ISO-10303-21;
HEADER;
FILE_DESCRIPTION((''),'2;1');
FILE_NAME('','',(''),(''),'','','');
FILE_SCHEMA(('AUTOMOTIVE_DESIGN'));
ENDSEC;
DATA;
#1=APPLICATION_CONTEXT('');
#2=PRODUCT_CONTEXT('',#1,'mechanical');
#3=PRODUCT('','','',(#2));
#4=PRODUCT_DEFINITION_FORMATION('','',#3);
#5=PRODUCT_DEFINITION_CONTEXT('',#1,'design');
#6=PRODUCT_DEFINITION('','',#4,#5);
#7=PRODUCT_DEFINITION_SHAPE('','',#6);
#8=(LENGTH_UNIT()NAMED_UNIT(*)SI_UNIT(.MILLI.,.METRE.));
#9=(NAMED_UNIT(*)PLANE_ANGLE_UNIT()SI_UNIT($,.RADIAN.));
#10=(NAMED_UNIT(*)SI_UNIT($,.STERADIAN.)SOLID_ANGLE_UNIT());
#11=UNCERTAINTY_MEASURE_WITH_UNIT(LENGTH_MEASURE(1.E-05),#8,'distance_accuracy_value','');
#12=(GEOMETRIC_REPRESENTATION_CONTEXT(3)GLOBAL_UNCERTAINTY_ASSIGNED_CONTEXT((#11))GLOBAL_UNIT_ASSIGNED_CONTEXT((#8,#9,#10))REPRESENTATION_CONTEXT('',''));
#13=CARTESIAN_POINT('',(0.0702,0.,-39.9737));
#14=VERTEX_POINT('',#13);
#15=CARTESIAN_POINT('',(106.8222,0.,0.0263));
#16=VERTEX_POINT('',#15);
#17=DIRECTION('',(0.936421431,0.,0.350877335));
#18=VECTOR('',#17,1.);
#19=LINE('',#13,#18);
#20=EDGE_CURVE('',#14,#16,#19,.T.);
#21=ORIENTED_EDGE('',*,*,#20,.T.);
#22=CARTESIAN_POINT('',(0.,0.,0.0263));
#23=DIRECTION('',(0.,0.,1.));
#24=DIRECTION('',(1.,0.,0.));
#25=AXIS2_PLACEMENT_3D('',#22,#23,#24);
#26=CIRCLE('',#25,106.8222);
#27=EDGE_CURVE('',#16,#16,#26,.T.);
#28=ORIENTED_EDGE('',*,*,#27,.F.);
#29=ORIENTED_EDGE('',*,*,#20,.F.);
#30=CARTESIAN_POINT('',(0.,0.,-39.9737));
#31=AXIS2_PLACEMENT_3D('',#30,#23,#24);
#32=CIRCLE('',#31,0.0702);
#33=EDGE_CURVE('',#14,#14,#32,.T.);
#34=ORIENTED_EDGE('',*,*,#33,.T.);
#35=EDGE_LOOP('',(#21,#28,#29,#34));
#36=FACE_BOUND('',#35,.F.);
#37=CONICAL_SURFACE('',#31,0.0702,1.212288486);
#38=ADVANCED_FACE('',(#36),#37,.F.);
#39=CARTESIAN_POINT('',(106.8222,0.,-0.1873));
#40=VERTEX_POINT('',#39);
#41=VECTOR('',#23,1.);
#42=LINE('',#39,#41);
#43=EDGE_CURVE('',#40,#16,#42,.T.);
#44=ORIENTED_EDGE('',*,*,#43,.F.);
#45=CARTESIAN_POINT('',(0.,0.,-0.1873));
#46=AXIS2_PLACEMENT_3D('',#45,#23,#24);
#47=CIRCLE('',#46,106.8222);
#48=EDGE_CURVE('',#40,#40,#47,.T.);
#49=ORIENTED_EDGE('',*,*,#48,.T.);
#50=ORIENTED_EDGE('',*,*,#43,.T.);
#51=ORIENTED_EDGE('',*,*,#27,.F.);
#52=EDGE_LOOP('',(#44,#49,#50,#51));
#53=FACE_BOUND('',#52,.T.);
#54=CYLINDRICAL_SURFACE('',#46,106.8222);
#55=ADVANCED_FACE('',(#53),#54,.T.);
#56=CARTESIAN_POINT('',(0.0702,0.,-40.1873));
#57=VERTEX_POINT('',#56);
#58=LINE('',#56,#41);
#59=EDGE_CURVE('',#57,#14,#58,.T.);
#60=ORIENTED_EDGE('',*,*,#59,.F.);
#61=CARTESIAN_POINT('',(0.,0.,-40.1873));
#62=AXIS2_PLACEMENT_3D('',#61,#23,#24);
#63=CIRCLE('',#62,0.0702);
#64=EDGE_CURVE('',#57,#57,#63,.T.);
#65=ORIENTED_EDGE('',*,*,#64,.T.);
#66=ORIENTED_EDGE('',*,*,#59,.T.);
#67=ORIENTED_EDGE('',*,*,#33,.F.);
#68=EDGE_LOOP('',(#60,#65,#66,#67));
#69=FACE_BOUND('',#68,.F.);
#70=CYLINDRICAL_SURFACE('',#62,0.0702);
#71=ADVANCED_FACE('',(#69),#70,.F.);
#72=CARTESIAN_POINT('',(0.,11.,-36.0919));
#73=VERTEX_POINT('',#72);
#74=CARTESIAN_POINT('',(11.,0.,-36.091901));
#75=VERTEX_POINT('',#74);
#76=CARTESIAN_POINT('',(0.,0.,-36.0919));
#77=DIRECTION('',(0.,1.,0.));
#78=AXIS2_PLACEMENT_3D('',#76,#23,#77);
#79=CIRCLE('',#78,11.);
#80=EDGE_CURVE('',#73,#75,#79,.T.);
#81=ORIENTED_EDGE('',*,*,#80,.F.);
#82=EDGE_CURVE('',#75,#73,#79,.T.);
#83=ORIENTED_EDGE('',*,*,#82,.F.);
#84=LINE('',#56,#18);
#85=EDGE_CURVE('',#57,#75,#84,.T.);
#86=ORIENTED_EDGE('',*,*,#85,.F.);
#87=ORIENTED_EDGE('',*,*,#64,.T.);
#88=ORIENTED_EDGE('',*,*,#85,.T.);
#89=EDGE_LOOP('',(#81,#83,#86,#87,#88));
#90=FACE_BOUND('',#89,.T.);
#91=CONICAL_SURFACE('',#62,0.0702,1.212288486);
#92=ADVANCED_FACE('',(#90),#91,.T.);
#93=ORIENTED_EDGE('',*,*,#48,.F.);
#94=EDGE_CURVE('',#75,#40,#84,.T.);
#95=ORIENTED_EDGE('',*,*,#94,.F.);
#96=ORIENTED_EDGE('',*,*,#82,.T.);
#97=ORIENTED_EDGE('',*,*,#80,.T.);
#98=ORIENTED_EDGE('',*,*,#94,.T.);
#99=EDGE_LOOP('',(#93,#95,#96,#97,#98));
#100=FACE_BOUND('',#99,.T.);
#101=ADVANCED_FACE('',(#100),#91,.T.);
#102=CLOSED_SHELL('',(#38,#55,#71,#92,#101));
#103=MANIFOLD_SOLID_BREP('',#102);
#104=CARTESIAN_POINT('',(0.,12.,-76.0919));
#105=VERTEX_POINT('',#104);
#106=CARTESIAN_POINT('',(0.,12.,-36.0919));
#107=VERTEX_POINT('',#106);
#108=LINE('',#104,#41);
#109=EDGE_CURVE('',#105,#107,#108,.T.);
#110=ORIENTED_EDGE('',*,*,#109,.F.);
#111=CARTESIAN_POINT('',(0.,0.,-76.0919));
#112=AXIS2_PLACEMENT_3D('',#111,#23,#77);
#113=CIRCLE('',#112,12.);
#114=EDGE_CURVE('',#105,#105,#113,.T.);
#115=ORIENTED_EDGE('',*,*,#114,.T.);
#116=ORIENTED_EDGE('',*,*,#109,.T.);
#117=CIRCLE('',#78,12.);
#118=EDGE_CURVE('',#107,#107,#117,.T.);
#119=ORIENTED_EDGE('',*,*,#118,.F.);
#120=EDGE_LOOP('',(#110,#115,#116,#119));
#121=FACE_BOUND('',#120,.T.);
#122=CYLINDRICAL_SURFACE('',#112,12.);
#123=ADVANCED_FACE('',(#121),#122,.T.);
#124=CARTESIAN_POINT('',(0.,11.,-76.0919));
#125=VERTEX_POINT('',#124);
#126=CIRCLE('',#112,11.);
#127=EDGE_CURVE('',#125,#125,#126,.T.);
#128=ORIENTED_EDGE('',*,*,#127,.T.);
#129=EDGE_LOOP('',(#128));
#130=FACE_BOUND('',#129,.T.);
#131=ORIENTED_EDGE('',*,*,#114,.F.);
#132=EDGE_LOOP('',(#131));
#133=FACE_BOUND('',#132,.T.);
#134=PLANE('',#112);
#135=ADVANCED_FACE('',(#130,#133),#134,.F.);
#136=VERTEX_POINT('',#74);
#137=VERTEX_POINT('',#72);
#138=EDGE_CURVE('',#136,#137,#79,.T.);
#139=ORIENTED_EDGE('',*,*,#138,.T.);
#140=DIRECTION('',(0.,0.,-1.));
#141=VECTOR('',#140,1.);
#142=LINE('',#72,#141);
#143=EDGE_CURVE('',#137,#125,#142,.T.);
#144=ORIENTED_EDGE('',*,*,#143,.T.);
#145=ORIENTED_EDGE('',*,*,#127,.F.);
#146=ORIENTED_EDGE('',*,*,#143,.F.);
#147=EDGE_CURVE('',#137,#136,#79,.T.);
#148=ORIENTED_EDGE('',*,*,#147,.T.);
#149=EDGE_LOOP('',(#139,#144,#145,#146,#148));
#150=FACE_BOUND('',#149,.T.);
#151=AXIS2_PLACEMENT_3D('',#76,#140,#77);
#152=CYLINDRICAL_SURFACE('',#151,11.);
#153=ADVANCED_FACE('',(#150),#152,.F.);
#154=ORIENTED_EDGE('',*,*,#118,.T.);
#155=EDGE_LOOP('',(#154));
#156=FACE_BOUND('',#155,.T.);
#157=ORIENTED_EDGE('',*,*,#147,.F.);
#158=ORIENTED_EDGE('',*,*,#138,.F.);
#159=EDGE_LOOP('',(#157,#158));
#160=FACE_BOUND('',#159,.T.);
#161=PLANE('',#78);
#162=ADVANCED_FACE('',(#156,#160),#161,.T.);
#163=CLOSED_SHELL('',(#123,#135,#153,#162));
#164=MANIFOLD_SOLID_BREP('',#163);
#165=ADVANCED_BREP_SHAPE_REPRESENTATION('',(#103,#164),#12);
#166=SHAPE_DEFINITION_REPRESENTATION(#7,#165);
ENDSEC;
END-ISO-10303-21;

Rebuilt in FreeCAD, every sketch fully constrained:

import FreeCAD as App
import Part
import Sketcher

V = App.Vector


def add_polygon(sketch, points):
    """Adds a closed chain of lines whose ends are joined by coincident constraints."""
    first, n = sketch.GeometryCount, len(points)
    for a, b in zip(points, points[1:] + points[:1]):
        sketch.addGeometry(Part.LineSegment(App.Vector(*a, 0), App.Vector(*b, 0)), False)
    for i in range(n):
        sketch.addConstraint(Sketcher.Constraint("Coincident", first + i, 2, first + (i + 1) % n, 1))

doc = App.newDocument("Part")
params = doc.addObject("Spreadsheet::Sheet", "Params")
for row, (alias, value) in enumerate([
    ("sketch1_length", "114 mm"),
    ("revolution_angle", "360 deg"),
    ("sketch2_width", "1 mm"),
    ("sketch2_height", "40 mm"),
    ("revolution2_angle", "360 deg"),
], start=1):
    params.set(f"A{row}", alias)
    params.set(f"B{row}", "=" + value)
    params.setAlias(f"B{row}", alias)

body = doc.addObject("PartDesign::Body", "Body")
body.AllowCompound = True

sketch1 = body.newObject("Sketcher::SketchObject", "Sketch")
sketch1.AttachmentSupport = (doc.getObject("XZ_Plane"), [""])
sketch1.MapMode = "FlatFace"
add_polygon(sketch1, [(0.07, -40.19), (0.07, -39.97), (106.82, 0.03), (106.82, -0.19)])
sketch1.addConstraint(Sketcher.Constraint("Vertical", 0))
sketch1.addConstraint(Sketcher.Constraint("Vertical", 2))
sketch1.addConstraint(Sketcher.Constraint("Parallel", 1, 3))
sketch1.addConstraint(Sketcher.Constraint("Distance", 1, 114.0))
sketch1.addConstraint(Sketcher.Constraint("DistanceY", 0, 2, 1, 2, 40.0))
sketch1.addConstraint(Sketcher.Constraint("DistanceY", 0, 1, 0, 2, 0.2136))
sketch1.addConstraint(Sketcher.Constraint("DistanceX", -1, 1, 0, 2, 0.0702))
sketch1.addConstraint(Sketcher.Constraint("DistanceY", 0, 2, -1, 1, 39.9737))
sketch1.setExpression("Constraints[7]", "Params.sketch1_length")
revolution = body.newObject("PartDesign::Revolution", "Revolution")
revolution.Profile = sketch1
revolution.ReferenceAxis = (sketch1, ["V_Axis"])
revolution.setExpression("Angle", "Params.revolution_angle")

sketch2 = body.newObject("Sketcher::SketchObject", "Sketch001")
sketch2.AttachmentSupport = (doc.getObject("YZ_Plane"), [""])
sketch2.MapMode = "FlatFace"
add_polygon(sketch2, [(12, -36.1), (11, -36.1), (11, -76.1), (12, -76.1)])
sketch2.addConstraint(Sketcher.Constraint("Horizontal", 0))
sketch2.addConstraint(Sketcher.Constraint("Vertical", 1))
sketch2.addConstraint(Sketcher.Constraint("Horizontal", 2))
sketch2.addConstraint(Sketcher.Constraint("Vertical", 3))
sketch2.addConstraint(Sketcher.Constraint("DistanceX", 0, 2, 0, 1, 1.0))
sketch2.addConstraint(Sketcher.Constraint("DistanceY", 1, 2, 1, 1, 40.0))
sketch2.addConstraint(Sketcher.Constraint("DistanceX", -1, 1, 0, 2, 11.0))
sketch2.addConstraint(Sketcher.Constraint("DistanceY", 0, 2, -1, 1, 36.092))
sketch2.setExpression("Constraints[8]", "Params.sketch2_width")
sketch2.setExpression("Constraints[9]", "Params.sketch2_height")
revolution2 = body.newObject("PartDesign::Revolution", "Revolution001")
revolution2.Profile = sketch2
revolution2.ReferenceAxis = (sketch2, ["V_Axis"])
revolution2.setExpression("Angle", "Params.revolution2_angle")

doc.recompute()
